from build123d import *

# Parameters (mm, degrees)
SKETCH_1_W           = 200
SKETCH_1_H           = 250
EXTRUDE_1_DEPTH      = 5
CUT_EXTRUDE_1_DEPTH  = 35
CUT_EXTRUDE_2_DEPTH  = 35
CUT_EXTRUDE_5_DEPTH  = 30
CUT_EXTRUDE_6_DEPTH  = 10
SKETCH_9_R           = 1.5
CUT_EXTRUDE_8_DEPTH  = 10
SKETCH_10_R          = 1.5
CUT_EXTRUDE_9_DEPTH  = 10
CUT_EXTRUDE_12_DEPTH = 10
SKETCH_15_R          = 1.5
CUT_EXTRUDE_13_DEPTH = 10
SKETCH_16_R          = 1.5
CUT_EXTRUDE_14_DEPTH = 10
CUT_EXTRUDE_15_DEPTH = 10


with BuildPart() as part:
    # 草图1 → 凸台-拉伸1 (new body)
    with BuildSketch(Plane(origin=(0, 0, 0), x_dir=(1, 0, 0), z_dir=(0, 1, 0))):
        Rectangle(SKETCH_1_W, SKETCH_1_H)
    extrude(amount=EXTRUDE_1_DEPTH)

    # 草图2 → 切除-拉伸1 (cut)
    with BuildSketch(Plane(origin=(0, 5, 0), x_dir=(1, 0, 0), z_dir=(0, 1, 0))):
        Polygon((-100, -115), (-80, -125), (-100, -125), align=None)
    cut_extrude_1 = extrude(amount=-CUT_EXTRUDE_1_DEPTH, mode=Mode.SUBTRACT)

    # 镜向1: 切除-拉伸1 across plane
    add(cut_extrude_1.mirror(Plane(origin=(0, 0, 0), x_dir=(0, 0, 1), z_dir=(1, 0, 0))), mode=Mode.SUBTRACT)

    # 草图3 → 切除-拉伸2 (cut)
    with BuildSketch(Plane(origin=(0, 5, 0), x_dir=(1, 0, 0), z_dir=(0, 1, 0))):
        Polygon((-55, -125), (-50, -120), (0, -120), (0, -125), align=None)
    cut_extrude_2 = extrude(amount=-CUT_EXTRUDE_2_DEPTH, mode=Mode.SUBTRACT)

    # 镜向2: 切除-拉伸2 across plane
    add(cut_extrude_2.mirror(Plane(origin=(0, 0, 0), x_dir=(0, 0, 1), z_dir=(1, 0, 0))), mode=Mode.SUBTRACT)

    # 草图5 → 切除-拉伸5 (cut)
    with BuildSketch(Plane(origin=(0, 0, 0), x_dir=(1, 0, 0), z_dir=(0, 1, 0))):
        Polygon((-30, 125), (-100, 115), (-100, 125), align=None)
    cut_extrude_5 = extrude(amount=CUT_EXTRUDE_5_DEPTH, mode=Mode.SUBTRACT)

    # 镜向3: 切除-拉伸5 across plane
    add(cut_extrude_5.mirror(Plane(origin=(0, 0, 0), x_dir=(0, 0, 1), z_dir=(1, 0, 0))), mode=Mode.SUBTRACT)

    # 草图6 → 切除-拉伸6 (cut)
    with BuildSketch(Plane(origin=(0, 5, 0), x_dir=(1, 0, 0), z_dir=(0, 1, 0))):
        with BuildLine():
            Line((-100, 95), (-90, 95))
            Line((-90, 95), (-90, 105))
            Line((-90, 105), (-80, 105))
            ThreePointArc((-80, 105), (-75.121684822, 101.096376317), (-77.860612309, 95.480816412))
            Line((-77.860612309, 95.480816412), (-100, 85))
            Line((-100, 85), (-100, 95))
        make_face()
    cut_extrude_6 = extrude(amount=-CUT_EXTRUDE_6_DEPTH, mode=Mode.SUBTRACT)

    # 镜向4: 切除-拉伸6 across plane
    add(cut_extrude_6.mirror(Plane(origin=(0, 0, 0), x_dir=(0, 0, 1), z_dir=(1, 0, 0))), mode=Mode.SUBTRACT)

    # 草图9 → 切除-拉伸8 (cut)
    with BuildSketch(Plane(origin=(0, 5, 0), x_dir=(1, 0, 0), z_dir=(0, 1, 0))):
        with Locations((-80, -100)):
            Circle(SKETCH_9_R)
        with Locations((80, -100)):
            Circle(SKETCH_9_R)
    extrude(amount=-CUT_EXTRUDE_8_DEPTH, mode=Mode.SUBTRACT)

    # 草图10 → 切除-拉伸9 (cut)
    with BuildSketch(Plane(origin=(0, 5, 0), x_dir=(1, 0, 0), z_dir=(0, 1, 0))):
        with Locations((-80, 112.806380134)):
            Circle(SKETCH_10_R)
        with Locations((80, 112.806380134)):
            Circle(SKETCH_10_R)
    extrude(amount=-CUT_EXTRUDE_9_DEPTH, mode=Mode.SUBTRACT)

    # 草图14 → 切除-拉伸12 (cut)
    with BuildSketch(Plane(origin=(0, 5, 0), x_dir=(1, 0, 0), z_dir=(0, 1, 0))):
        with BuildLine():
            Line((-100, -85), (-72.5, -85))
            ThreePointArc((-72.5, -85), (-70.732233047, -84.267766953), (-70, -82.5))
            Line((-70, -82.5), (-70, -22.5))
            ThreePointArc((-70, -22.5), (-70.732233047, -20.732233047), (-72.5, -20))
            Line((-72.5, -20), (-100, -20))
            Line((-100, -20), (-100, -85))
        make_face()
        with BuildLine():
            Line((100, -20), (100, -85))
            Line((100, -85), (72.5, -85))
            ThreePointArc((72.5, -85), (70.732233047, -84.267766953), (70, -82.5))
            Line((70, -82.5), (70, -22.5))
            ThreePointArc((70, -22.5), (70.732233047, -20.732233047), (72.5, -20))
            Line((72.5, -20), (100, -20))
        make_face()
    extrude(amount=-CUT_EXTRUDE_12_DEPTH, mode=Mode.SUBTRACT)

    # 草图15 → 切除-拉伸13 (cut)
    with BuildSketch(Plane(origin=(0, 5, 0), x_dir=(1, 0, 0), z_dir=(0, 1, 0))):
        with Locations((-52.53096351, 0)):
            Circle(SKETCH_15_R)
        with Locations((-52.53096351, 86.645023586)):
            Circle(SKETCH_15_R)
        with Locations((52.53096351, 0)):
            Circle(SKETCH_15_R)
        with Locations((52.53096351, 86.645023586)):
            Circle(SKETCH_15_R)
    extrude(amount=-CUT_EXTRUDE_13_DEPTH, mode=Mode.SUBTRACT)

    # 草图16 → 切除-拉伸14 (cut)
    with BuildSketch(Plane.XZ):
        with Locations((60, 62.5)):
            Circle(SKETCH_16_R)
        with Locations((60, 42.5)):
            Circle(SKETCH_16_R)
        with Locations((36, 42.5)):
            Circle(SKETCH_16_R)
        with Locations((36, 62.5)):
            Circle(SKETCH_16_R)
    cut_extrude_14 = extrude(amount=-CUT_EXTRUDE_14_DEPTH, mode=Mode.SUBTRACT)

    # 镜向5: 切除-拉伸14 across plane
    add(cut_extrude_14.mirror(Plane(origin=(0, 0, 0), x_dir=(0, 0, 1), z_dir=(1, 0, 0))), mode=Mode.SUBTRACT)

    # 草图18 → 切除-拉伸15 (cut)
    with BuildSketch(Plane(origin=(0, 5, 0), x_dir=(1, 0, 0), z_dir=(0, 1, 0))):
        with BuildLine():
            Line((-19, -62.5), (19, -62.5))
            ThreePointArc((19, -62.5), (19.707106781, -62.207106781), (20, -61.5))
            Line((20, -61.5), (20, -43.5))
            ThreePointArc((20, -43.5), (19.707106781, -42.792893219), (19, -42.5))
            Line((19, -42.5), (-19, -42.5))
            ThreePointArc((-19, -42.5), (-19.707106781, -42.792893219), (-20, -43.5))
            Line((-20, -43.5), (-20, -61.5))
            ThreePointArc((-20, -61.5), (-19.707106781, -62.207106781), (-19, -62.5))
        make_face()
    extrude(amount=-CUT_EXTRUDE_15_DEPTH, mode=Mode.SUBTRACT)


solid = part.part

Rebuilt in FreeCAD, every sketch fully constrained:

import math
import FreeCAD as App
import Part
import Sketcher
from FreeCAD import Vector
Q = App.Units.Quantity


def add_polygon(sketch, points):
    """Adds a closed chain of lines whose ends are joined by coincident constraints."""
    first, n = sketch.GeometryCount, len(points)
    for a, b in zip(points, points[1:] + points[:1]):
        sketch.addGeometry(Part.LineSegment(App.Vector(*a, 0), App.Vector(*b, 0)), False)
    for i in range(n):
        sketch.addConstraint(Sketcher.Constraint("Coincident", first + i, 2, first + (i + 1) % n, 1))

doc = App.newDocument("Part")
params = doc.addObject("Spreadsheet::Sheet", "Params")
for row, (alias, value) in enumerate([
    ("sketch1_width", "200 mm"),
    ("sketch1_height", "250 mm"),
    ("pad1_length", "5 mm"),
    ("sketch2_width", "20 mm"),
    ("sketch2_height", "10 mm"),
    ("pocket1_length", "35 mm"),
    ("sketch3_width", "55 mm"),
    ("sketch3_width2", "50 mm"),
    ("sketch3_height", "5 mm"),
    ("pocket2_length", "35 mm"),
    ("sketch4_width", "70 mm"),
    ("sketch4_height", "10 mm"),
    ("pocket3_length", "30 mm"),
    ("sketch5_radius", "5 mm"),
    ("sketch5_width", "10 mm"),
    ("pocket4_length", "10 mm"),
    ("sketch6_diameter", "3 mm"),
    ("pocket5_length", "10 mm"),
    ("sketch7_diameter", "3 mm"),
    ("pocket6_length", "10 mm"),
    ("sketch8_radius", "2.5 mm"),
    ("sketch8_height", "60 mm"),
    ("sketch8_width", "27.5 mm"),
    ("pocket7_length", "10 mm"),
    ("sketch9_diameter", "3 mm"),
    ("pocket8_length", "10 mm"),
    ("sketch10_diameter", "3 mm"),
    ("pocket9_length", "10 mm"),
    ("sketch11_radius", "1 mm"),
    ("sketch11_width", "38 mm"),
    ("sketch11_height", "18 mm"),
    ("pocket10_length", "10 mm"),
], start=1):
    params.set(f"A{row}", alias)
    params.set(f"B{row}", "=" + value)
    params.setAlias(f"B{row}", alias)

body = doc.addObject("PartDesign::Body", "Body")

sketch1 = body.newObject("Sketcher::SketchObject", "Sketch")
sketch1.AttachmentSupport = (doc.getObject("XZ_Plane"), [""])
sketch1.MapMode = "FlatFace"
add_polygon(sketch1, [(-100, -125), (-100, 125), (100, 125), (100, -125)])
sketch1.addConstraint(Sketcher.Constraint("Vertical", 0))
sketch1.addConstraint(Sketcher.Constraint("Horizontal", 1))
sketch1.addConstraint(Sketcher.Constraint("Vertical", 2))
sketch1.addConstraint(Sketcher.Constraint("Horizontal", 3))
sketch1.addConstraint(Sketcher.Constraint("Symmetric", 0, 2, 2, 2, -1, 1))
sketch1.addConstraint(Sketcher.Constraint("DistanceX", 1, 1, 1, 2, Q("200 mm")))
sketch1.addConstraint(Sketcher.Constraint("DistanceY", 0, 1, 0, 2, Q("250 mm")))
sketch1.setExpression("Constraints[9]", "Params.sketch1_width")
sketch1.setExpression("Constraints[10]", "Params.sketch1_height")
pad1 = body.newObject("PartDesign::Pad", "Pad")
pad1.Profile = sketch1
pad1.setExpression("Length", "Params.pad1_length")
pad1.Reversed = True

sketch2 = body.newObject("Sketcher::SketchObject", "Sketch001")
sketch2.AttachmentSupport = (doc.getObject("XZ_Plane"), [""])
sketch2.MapMode = "FlatFace"
sketch2.AttachmentOffset = App.Placement(Vector(0, 0, -5), App.Rotation())
add_polygon(sketch2, [(-80, 125), (-100, 115), (-100, 125)])
sketch2.addConstraint(Sketcher.Constraint("Vertical", 1))
sketch2.addConstraint(Sketcher.Constraint("Horizontal", 2))
sketch2.addConstraint(Sketcher.Constraint("DistanceX", 2, 1, 2, 2, Q("20 mm")))
sketch2.addConstraint(Sketcher.Constraint("DistanceY", 1, 1, 1, 2, Q("10 mm")))
sketch2.addConstraint(Sketcher.Constraint("DistanceX", 0, 2, -1, 1, Q("100 mm")))
sketch2.addConstraint(Sketcher.Constraint("DistanceY", -1, 1, 0, 2, Q("115 mm")))
sketch2.setExpression("Constraints[5]", "Params.sketch2_width")
sketch2.setExpression("Constraints[6]", "Params.sketch2_height")
pocket1 = body.newObject("PartDesign::Pocket", "Pocket")
pocket1.Profile = sketch2
pocket1.setExpression("Length", "Params.pocket1_length")
pocket1.Reversed = True
doc.recompute()

mirrored = body.newObject("PartDesign::Mirrored", "Mirrored")
mirrored.Originals = [pocket1]
mirrored.MirrorPlane = (doc.getObject("YZ_Plane"), [""])
body.Tip = mirrored

sketch3 = body.newObject("Sketcher::SketchObject", "Sketch002")
sketch3.AttachmentSupport = (doc.getObject("XZ_Plane"), [""])
sketch3.MapMode = "FlatFace"
sketch3.AttachmentOffset = App.Placement(Vector(0, 0, -5), App.Rotation())
add_polygon(sketch3, [(-50, 120), (-55, 125), (0, 125), (0, 120)])
sketch3.addConstraint(Sketcher.Constraint("Horizontal", 1))
sketch3.addConstraint(Sketcher.Constraint("Vertical", 2))
sketch3.addConstraint(Sketcher.Constraint("Horizontal", 3))
sketch3.addConstraint(Sketcher.Constraint("PointOnObject", 1, 2, -2))
sketch3.addConstraint(Sketcher.Constraint("DistanceX", 1, 1, 1, 2, Q("55 mm")))
sketch3.addConstraint(Sketcher.Constraint("DistanceX", 3, 2, 3, 1, Q("50 mm")))
sketch3.addConstraint(Sketcher.Constraint("DistanceY", 2, 2, 2, 1, Q("5 mm")))
sketch3.addConstraint(Sketcher.Constraint("DistanceY", -1, 1, 0, 2, Q("125 mm")))
sketch3.setExpression("Constraints[8]", "Params.sketch3_width")
sketch3.setExpression("Constraints[9]", "Params.sketch3_width2")
sketch3.setExpression("Constraints[10]", "Params.sketch3_height")
pocket2 = body.newObject("PartDesign::Pocket", "Pocket001")
pocket2.Profile = sketch3
pocket2.setExpression("Length", "Params.pocket2_length")
pocket2.Reversed = True
doc.recompute()

mirrored2 = body.newObject("PartDesign::Mirrored", "Mirrored001")
mirrored2.Originals = [pocket2]
mirrored2.MirrorPlane = (doc.getObject("YZ_Plane"), [""])
body.Tip = mirrored2

sketch4 = body.newObject("Sketcher::SketchObject", "Sketch003")
sketch4.AttachmentSupport = (doc.getObject("XZ_Plane"), [""])
sketch4.MapMode = "FlatFace"
add_polygon(sketch4, [(-100, -115), (-30, -125), (-100, -125)])
sketch4.addConstraint(Sketcher.Constraint("Horizontal", 1))
sketch4.addConstraint(Sketcher.Constraint("Vertical", 2))
sketch4.addConstraint(Sketcher.Constraint("DistanceX", 1, 2, 1, 1, Q("70 mm")))
sketch4.addConstraint(Sketcher.Constraint("DistanceY", 2, 1, 2, 2, Q("10 mm")))
sketch4.addConstraint(Sketcher.Constraint("DistanceX", 0, 2, -1, 1, Q("30 mm")))
sketch4.addConstraint(Sketcher.Constraint("DistanceY", 0, 2, -1, 1, Q("125 mm")))
sketch4.setExpression("Constraints[5]", "Params.sketch4_width")
sketch4.setExpression("Constraints[6]", "Params.sketch4_height")
pocket3 = body.newObject("PartDesign::Pocket", "Pocket002")
pocket3.Profile = sketch4
pocket3.setExpression("Length", "Params.pocket3_length")
doc.recompute()

mirrored3 = body.newObject("PartDesign::Mirrored", "Mirrored002")
mirrored3.Originals = [pocket3]
mirrored3.MirrorPlane = (doc.getObject("YZ_Plane"), [""])
body.Tip = mirrored3

sketch5 = body.newObject("Sketcher::SketchObject", "Sketch004")
sketch5.AttachmentSupport = (doc.getObject("XZ_Plane"), [""])
sketch5.MapMode = "FlatFace"
sketch5.AttachmentOffset = App.Placement(Vector(0, 0, -5), App.Rotation())
sketch5.addGeometry(Part.LineSegment(Vector(-90, -95, 0), Vector(-100, -95, 0)), False)
sketch5.addGeometry(Part.LineSegment(Vector(-100, -95, 0), Vector(-100, -85, 0)), False)
sketch5.addGeometry(Part.LineSegment(Vector(-100, -85, 0), Vector(-77.860612, -95.480816, 0)), False)
sketch5.addGeometry(Part.ArcOfCircle(Part.Circle(Vector(-80, -100, 0), Vector(0, 0, 1), 5), math.radians(-90), math.radians(64.667061)), False)
sketch5.addGeometry(Part.LineSegment(Vector(-80, -105, 0), Vector(-90, -105, 0)), False)
sketch5.addGeometry(Part.LineSegment(Vector(-90, -105, 0), Vector(-90, -95, 0)), False)
sketch5.addConstraint(Sketcher.Constraint("Coincident", 0, 2, 1, 1))
sketch5.addConstraint(Sketcher.Constraint("Coincident", 1, 2, 2, 1))
sketch5.addConstraint(Sketcher.Constraint("Tangent", 2, 2, 3, 2))
sketch5.addConstraint(Sketcher.Constraint("Tangent", 3, 1, 4, 1))
sketch5.addConstraint(Sketcher.Constraint("Coincident", 4, 2, 5, 1))
sketch5.addConstraint(Sketcher.Constraint("Coincident", 5, 2, 0, 1))
sketch5.addConstraint(Sketcher.Constraint("Horizontal", 0))
sketch5.addConstraint(Sketcher.Constraint("Vertical", 1))
sketch5.addConstraint(Sketcher.Constraint("Horizontal", 4))
sketch5.addConstraint(Sketcher.Constraint("Vertical", 5))
sketch5.addConstraint(Sketcher.Constraint("Equal", 0, 4))
sketch5.addConstraint(Sketcher.Constraint("Equal", 4, 1))
sketch5.addConstraint(Sketcher.Constraint("Equal", 1, 5))
sketch5.addConstraint(Sketcher.Constraint("Radius", 3, Q("5 mm")))
sketch5.addConstraint(Sketcher.Constraint("DistanceX", 0, 2, 0, 1, Q("10 mm")))
sketch5.addConstraint(Sketcher.Constraint("DistanceX", 3, 3, -1, 1, Q("80 mm")))
sketch5.addConstraint(Sketcher.Constraint("DistanceY", 3, 3, -1, 1, Q("100 mm")))
sketch5.setExpression("Constraints[13]", "Params.sketch5_radius")
sketch5.setExpression("Constraints[14]", "Params.sketch5_width")
pocket4 = body.newObject("PartDesign::Pocket", "Pocket003")
pocket4.Profile = sketch5
pocket4.setExpression("Length", "Params.pocket4_length")
pocket4.Reversed = True
doc.recompute()

mirrored4 = body.newObject("PartDesign::Mirrored", "Mirrored003")
mirrored4.Originals = [pocket4]
mirrored4.MirrorPlane = (doc.getObject("YZ_Plane"), [""])
body.Tip = mirrored4

sketch6 = body.newObject("Sketcher::SketchObject", "Sketch005")
sketch6.AttachmentSupport = (doc.getObject("XZ_Plane"), [""])
sketch6.MapMode = "FlatFace"
sketch6.AttachmentOffset = App.Placement(Vector(0, 0, -5), App.Rotation())
sketch6.addGeometry(Part.Circle(Vector(-80, 100, 0), Vector(0, 0, 1), 1.5), False)
sketch6.addGeometry(Part.Circle(Vector(80, 100, 0), Vector(0, 0, 1), 1.5), False)
sketch6.addConstraint(Sketcher.Constraint("Equal", 0, 1))
sketch6.addConstraint(Sketcher.Constraint("Symmetric", 0, 3, 1, 3, -2))
sketch6.addConstraint(Sketcher.Constraint("Diameter", 0, Q("3 mm")))
sketch6.addConstraint(Sketcher.Constraint("DistanceX", 0, 3, -1, 1, Q("80 mm")))
sketch6.addConstraint(Sketcher.Constraint("DistanceY", -1, 1, 0, 3, Q("100 mm")))
sketch6.setExpression("Constraints[2]", "Params.sketch6_diameter")
pocket5 = body.newObject("PartDesign::Pocket", "Pocket004")
pocket5.Profile = sketch6
pocket5.setExpression("Length", "Params.pocket5_length")
pocket5.Reversed = True

sketch7 = body.newObject("Sketcher::SketchObject", "Sketch006")
sketch7.AttachmentSupport = (doc.getObject("XZ_Plane"), [""])
sketch7.MapMode = "FlatFace"
sketch7.AttachmentOffset = App.Placement(Vector(0, 0, -5), App.Rotation())
sketch7.addGeometry(Part.Circle(Vector(-80, -112.80638, 0), Vector(0, 0, 1), 1.5), False)
sketch7.addGeometry(Part.Circle(Vector(80, -112.80638, 0), Vector(0, 0, 1), 1.5), False)
sketch7.addConstraint(Sketcher.Constraint("Equal", 0, 1))
sketch7.addConstraint(Sketcher.Constraint("Symmetric", 0, 3, 1, 3, -2))
sketch7.addConstraint(Sketcher.Constraint("Diameter", 0, Q("3 mm")))
sketch7.addConstraint(Sketcher.Constraint("DistanceX", 0, 3, -1, 1, Q("80 mm")))
sketch7.addConstraint(Sketcher.Constraint("DistanceY", 0, 3, -1, 1, Q("112.80638 mm")))
sketch7.setExpression("Constraints[2]", "Params.sketch7_diameter")
pocket6 = body.newObject("PartDesign::Pocket", "Pocket005")
pocket6.Profile = sketch7
pocket6.setExpression("Length", "Params.pocket6_length")
pocket6.Reversed = True

sketch8 = body.newObject("Sketcher::SketchObject", "Sketch007")
sketch8.AttachmentSupport = (doc.getObject("XZ_Plane"), [""])
sketch8.MapMode = "FlatFace"
sketch8.AttachmentOffset = App.Placement(Vector(0, 0, -5), App.Rotation())
sketch8.addGeometry(Part.LineSegment(Vector(-100, 85, 0), Vector(-72.5, 85, 0)), False)
sketch8.addGeometry(Part.ArcOfCircle(Part.Circle(Vector(-72.5, 82.5, 0), Vector(0, 0, 1), 2.5), math.radians(0), math.radians(90)), False)
sketch8.addGeometry(Part.LineSegment(Vector(-70, 82.5, 0), Vector(-70, 22.5, 0)), False)
sketch8.addGeometry(Part.ArcOfCircle(Part.Circle(Vector(-72.5, 22.5, 0), Vector(0, 0, 1), 2.5), math.radians(-90), math.radians(0)), False)
sketch8.addGeometry(Part.LineSegment(Vector(-72.5, 20, 0), Vector(-100, 20, 0)), False)
sketch8.addGeometry(Part.LineSegment(Vector(-100, 20, 0), Vector(-100, 85, 0)), False)
sketch8.addGeometry(Part.LineSegment(Vector(100, 85, 0), Vector(100, 20, 0)), False)
sketch8.addGeometry(Part.LineSegment(Vector(100, 20, 0), Vector(72.5, 20, 0)), False)
sketch8.addGeometry(Part.ArcOfCircle(Part.Circle(Vector(72.5, 22.5, 0), Vector(0, 0, 1), 2.5), math.radians(180), math.radians(270)), False)
sketch8.addGeometry(Part.LineSegment(Vector(70, 22.5, 0), Vector(70, 82.5, 0)), False)
sketch8.addGeometry(Part.ArcOfCircle(Part.Circle(Vector(72.5, 82.5, 0), Vector(0, 0, 1), 2.5), math.radians(90), math.radians(180)), False)
sketch8.addGeometry(Part.LineSegment(Vector(72.5, 85, 0), Vector(100, 85, 0)), False)
sketch8.addConstraint(Sketcher.Constraint("Tangent", 0, 2, 1, 2))
sketch8.addConstraint(Sketcher.Constraint("Tangent", 1, 1, 2, 1))
sketch8.addConstraint(Sketcher.Constraint("Tangent", 2, 2, 3, 2))
sketch8.addConstraint(Sketcher.Constraint("Tangent", 3, 1, 4, 1))
sketch8.addConstraint(Sketcher.Constraint("Coincident", 4, 2, 5, 1))
sketch8.addConstraint(Sketcher.Constraint("Coincident", 5, 2, 0, 1))
sketch8.addConstraint(Sketcher.Constraint("Coincident", 6, 2, 7, 1))
sketch8.addConstraint(Sketcher.Constraint("Tangent", 7, 2, 8, 2))
sketch8.addConstraint(Sketcher.Constraint("Tangent", 8, 1, 9, 1))
sketch8.addConstraint(Sketcher.Constraint("Tangent", 9, 2, 10, 2))
sketch8.addConstraint(Sketcher.Constraint("Tangent", 10, 1, 11, 1))
sketch8.addConstraint(Sketcher.Constraint("Coincident", 11, 2, 6, 1))
sketch8.addConstraint(Sketcher.Constraint("Horizontal", 0))
sketch8.addConstraint(Sketcher.Constraint("Vertical", 2))
sketch8.addConstraint(Sketcher.Constraint("Horizontal", 4))
sketch8.addConstraint(Sketcher.Constraint("Vertical", 5))
sketch8.addConstraint(Sketcher.Constraint("Vertical", 6))
sketch8.addConstraint(Sketcher.Constraint("Horizontal", 7))
sketch8.addConstraint(Sketcher.Constraint("Vertical", 9))
sketch8.addConstraint(Sketcher.Constraint("Horizontal", 11))
sketch8.addConstraint(Sketcher.Constraint("Equal", 1, 3))
sketch8.addConstraint(Sketcher.Constraint("Equal", 3, 8))
sketch8.addConstraint(Sketcher.Constraint("Equal", 8, 10))
sketch8.addConstraint(Sketcher.Constraint("Symmetric", 3, 3, 8, 3, -2))
sketch8.addConstraint(Sketcher.Constraint("Symmetric", 5, 2, 11, 2, -2))
sketch8.addConstraint(Sketcher.Constraint("Radius", 1, Q("2.5 mm")))
sketch8.addConstraint(Sketcher.Constraint("DistanceY", 2, 2, 2, 1, Q("60 mm")))
sketch8.addConstraint(Sketcher.Constraint("DistanceX", 0, 1, 0, 2, Q("27.5 mm")))
sketch8.addConstraint(Sketcher.Constraint("DistanceY", -1, 1, 0, 2, Q("85 mm")))
sketch8.addConstraint(Sketcher.Constraint("DistanceX", 1, 1, -1, 1, Q("70 mm")))
sketch8.setExpression("Constraints[25]", "Params.sketch8_radius")
sketch8.setExpression("Constraints[26]", "Params.sketch8_height")
sketch8.setExpression("Constraints[27]", "Params.sketch8_width")
pocket7 = body.newObject("PartDesign::Pocket", "Pocket006")
pocket7.Profile = sketch8
pocket7.setExpression("Length", "Params.pocket7_length")
pocket7.Reversed = True

sketch9 = body.newObject("Sketcher::SketchObject", "Sketch008")
sketch9.AttachmentSupport = (doc.getObject("XZ_Plane"), [""])
sketch9.MapMode = "FlatFace"
sketch9.AttachmentOffset = App.Placement(Vector(0, 0, -5), App.Rotation())
sketch9.addGeometry(Part.Circle(Vector(-52.530964, 0, 0), Vector(0, 0, 1), 1.5), False)
sketch9.addGeometry(Part.Circle(Vector(-52.530964, -86.645024, 0), Vector(0, 0, 1), 1.5), False)
sketch9.addGeometry(Part.Circle(Vector(52.530964, 0, 0), Vector(0, 0, 1), 1.5), False)
sketch9.addGeometry(Part.Circle(Vector(52.530964, -86.645024, 0), Vector(0, 0, 1), 1.5), False)
sketch9.addConstraint(Sketcher.Constraint("Equal", 0, 1))
sketch9.addConstraint(Sketcher.Constraint("Equal", 1, 2))
sketch9.addConstraint(Sketcher.Constraint("Equal", 2, 3))
sketch9.addConstraint(Sketcher.Constraint("Symmetric", 0, 3, 2, 3, -1, 1))
sketch9.addConstraint(Sketcher.Constraint("Symmetric", 1, 3, 3, 3, -2))
sketch9.addConstraint(Sketcher.Constraint("PointOnObject", 0, 3, -1))
sketch9.addConstraint(Sketcher.Constraint("Vertical", 0, 3, 1, 3))
sketch9.addConstraint(Sketcher.Constraint("Diameter", 0, Q("3 mm")))
sketch9.addConstraint(Sketcher.Constraint("DistanceX", 0, 3, -1, 1, Q("52.530964 mm")))
sketch9.addConstraint(Sketcher.Constraint("DistanceY", 1, 3, -1, 1, Q("86.645024 mm")))
sketch9.setExpression("Constraints[7]", "Params.sketch9_diameter")
pocket8 = body.newObject("PartDesign::Pocket", "Pocket007")
pocket8.Profile = sketch9
pocket8.setExpression("Length", "Params.pocket8_length")
pocket8.Reversed = True

sketch10 = body.newObject("Sketcher::SketchObject", "Sketch009")
sketch10.AttachmentSupport = (doc.getObject("XZ_Plane"), [""])
sketch10.MapMode = "FlatFace"
sketch10.addGeometry(Part.Circle(Vector(60, 62.5, 0), Vector(0, 0, 1), 1.5), False)
sketch10.addGeometry(Part.Circle(Vector(60, 42.5, 0), Vector(0, 0, 1), 1.5), False)
sketch10.addGeometry(Part.Circle(Vector(36, 42.5, 0), Vector(0, 0, 1), 1.5), False)
sketch10.addGeometry(Part.Circle(Vector(36, 62.5, 0), Vector(0, 0, 1), 1.5), False)
sketch10.addConstraint(Sketcher.Constraint("Equal", 0, 1))
sketch10.addConstraint(Sketcher.Constraint("Equal", 1, 2))
sketch10.addConstraint(Sketcher.Constraint("Equal", 2, 3))
sketch10.addConstraint(Sketcher.Constraint("Horizontal", 1, 3, 2, 3))
sketch10.addConstraint(Sketcher.Constraint("Horizontal", 0, 3, 3, 3))
sketch10.addConstraint(Sketcher.Constraint("Vertical", 0, 3, 1, 3))
sketch10.addConstraint(Sketcher.Constraint("Vertical", 2, 3, 3, 3))
sketch10.addConstraint(Sketcher.Constraint("Diameter", 0, Q("3 mm")))
sketch10.addConstraint(Sketcher.Constraint("DistanceX", -1, 1, 0, 3, Q("60 mm")))
sketch10.addConstraint(Sketcher.Constraint("DistanceX", -1, 1, 2, 3, Q("36 mm")))
sketch10.addConstraint(Sketcher.Constraint("DistanceY", 1, 3, 0, 3, Q("20 mm")))
sketch10.addConstraint(Sketcher.Constraint("DistanceY", -1, 1, 0, 3, Q("62.5 mm")))
sketch10.setExpression("Constraints[7]", "Params.sketch10_diameter")
pocket9 = body.newObject("PartDesign::Pocket", "Pocket008")
pocket9.Profile = sketch10
pocket9.setExpression("Length", "Params.pocket9_length")
doc.recompute()

mirrored5 = body.newObject("PartDesign::Mirrored", "Mirrored004")
mirrored5.Originals = [pocket9]
mirrored5.MirrorPlane = (doc.getObject("YZ_Plane"), [""])
body.Tip = mirrored5

sketch11 = body.newObject("Sketcher::SketchObject", "Sketch010")
sketch11.AttachmentSupport = (doc.getObject("XZ_Plane"), [""])
sketch11.MapMode = "FlatFace"
sketch11.AttachmentOffset = App.Placement(Vector(0, 0, -5), App.Rotation())
sketch11.addGeometry(Part.LineSegment(Vector(-19, 62.5, 0), Vector(19, 62.5, 0)), False)
sketch11.addGeometry(Part.ArcOfCircle(Part.Circle(Vector(19, 61.5, 0), Vector(0, 0, 1), 1), math.radians(0), math.radians(90)), False)
sketch11.addGeometry(Part.LineSegment(Vector(20, 61.5, 0), Vector(20, 43.5, 0)), False)
sketch11.addGeometry(Part.ArcOfCircle(Part.Circle(Vector(19, 43.5, 0), Vector(0, 0, 1), 1), math.radians(-90), math.radians(0)), False)
sketch11.addGeometry(Part.LineSegment(Vector(19, 42.5, 0), Vector(-19, 42.5, 0)), False)
sketch11.addGeometry(Part.ArcOfCircle(Part.Circle(Vector(-19, 43.5, 0), Vector(0, 0, 1), 1), math.radians(-180), math.radians(-90)), False)
sketch11.addGeometry(Part.LineSegment(Vector(-20, 43.5, 0), Vector(-20, 61.5, 0)), False)
sketch11.addGeometry(Part.ArcOfCircle(Part.Circle(Vector(-19, 61.5, 0), Vector(0, 0, 1), 1), math.radians(90), math.radians(180)), False)
sketch11.addConstraint(Sketcher.Constraint("Tangent", 0, 2, 1, 2))
sketch11.addConstraint(Sketcher.Constraint("Tangent", 1, 1, 2, 1))
sketch11.addConstraint(Sketcher.Constraint("Tangent", 2, 2, 3, 2))
sketch11.addConstraint(Sketcher.Constraint("Tangent", 3, 1, 4, 1))
sketch11.addConstraint(Sketcher.Constraint("Tangent", 4, 2, 5, 2))
sketch11.addConstraint(Sketcher.Constraint("Tangent", 5, 1, 6, 1))
sketch11.addConstraint(Sketcher.Constraint("Tangent", 6, 2, 7, 2))
sketch11.addConstraint(Sketcher.Constraint("Tangent", 7, 1, 0, 1))
sketch11.addConstraint(Sketcher.Constraint("Horizontal", 0))
sketch11.addConstraint(Sketcher.Constraint("Vertical", 2))
sketch11.addConstraint(Sketcher.Constraint("Horizontal", 4))
sketch11.addConstraint(Sketcher.Constraint("Vertical", 6))
sketch11.addConstraint(Sketcher.Constraint("Equal", 1, 3))
sketch11.addConstraint(Sketcher.Constraint("Equal", 3, 5))
sketch11.addConstraint(Sketcher.Constraint("Equal", 5, 7))
sketch11.addConstraint(Sketcher.Constraint("Radius", 1, Q("1 mm")))
sketch11.addConstraint(Sketcher.Constraint("DistanceX", 0, 1, 0, 2, Q("38 mm")))
sketch11.addConstraint(Sketcher.Constraint("DistanceY", 2, 2, 2, 1, Q("18 mm")))
sketch11.addConstraint(Sketcher.Constraint("DistanceX", -1, 1, 1, 3, Q("19 mm")))
sketch11.addConstraint(Sketcher.Constraint("DistanceY", -1, 1, 1, 3, Q("61.5 mm")))
sketch11.setExpression("Constraints[15]", "Params.sketch11_radius")
sketch11.setExpression("Constraints[16]", "Params.sketch11_width")
sketch11.setExpression("Constraints[17]", "Params.sketch11_height")
pocket10 = body.newObject("PartDesign::Pocket", "Pocket009")
pocket10.Profile = sketch11
pocket10.setExpression("Length", "Params.pocket10_length")
pocket10.Reversed = True

doc.recompute()
